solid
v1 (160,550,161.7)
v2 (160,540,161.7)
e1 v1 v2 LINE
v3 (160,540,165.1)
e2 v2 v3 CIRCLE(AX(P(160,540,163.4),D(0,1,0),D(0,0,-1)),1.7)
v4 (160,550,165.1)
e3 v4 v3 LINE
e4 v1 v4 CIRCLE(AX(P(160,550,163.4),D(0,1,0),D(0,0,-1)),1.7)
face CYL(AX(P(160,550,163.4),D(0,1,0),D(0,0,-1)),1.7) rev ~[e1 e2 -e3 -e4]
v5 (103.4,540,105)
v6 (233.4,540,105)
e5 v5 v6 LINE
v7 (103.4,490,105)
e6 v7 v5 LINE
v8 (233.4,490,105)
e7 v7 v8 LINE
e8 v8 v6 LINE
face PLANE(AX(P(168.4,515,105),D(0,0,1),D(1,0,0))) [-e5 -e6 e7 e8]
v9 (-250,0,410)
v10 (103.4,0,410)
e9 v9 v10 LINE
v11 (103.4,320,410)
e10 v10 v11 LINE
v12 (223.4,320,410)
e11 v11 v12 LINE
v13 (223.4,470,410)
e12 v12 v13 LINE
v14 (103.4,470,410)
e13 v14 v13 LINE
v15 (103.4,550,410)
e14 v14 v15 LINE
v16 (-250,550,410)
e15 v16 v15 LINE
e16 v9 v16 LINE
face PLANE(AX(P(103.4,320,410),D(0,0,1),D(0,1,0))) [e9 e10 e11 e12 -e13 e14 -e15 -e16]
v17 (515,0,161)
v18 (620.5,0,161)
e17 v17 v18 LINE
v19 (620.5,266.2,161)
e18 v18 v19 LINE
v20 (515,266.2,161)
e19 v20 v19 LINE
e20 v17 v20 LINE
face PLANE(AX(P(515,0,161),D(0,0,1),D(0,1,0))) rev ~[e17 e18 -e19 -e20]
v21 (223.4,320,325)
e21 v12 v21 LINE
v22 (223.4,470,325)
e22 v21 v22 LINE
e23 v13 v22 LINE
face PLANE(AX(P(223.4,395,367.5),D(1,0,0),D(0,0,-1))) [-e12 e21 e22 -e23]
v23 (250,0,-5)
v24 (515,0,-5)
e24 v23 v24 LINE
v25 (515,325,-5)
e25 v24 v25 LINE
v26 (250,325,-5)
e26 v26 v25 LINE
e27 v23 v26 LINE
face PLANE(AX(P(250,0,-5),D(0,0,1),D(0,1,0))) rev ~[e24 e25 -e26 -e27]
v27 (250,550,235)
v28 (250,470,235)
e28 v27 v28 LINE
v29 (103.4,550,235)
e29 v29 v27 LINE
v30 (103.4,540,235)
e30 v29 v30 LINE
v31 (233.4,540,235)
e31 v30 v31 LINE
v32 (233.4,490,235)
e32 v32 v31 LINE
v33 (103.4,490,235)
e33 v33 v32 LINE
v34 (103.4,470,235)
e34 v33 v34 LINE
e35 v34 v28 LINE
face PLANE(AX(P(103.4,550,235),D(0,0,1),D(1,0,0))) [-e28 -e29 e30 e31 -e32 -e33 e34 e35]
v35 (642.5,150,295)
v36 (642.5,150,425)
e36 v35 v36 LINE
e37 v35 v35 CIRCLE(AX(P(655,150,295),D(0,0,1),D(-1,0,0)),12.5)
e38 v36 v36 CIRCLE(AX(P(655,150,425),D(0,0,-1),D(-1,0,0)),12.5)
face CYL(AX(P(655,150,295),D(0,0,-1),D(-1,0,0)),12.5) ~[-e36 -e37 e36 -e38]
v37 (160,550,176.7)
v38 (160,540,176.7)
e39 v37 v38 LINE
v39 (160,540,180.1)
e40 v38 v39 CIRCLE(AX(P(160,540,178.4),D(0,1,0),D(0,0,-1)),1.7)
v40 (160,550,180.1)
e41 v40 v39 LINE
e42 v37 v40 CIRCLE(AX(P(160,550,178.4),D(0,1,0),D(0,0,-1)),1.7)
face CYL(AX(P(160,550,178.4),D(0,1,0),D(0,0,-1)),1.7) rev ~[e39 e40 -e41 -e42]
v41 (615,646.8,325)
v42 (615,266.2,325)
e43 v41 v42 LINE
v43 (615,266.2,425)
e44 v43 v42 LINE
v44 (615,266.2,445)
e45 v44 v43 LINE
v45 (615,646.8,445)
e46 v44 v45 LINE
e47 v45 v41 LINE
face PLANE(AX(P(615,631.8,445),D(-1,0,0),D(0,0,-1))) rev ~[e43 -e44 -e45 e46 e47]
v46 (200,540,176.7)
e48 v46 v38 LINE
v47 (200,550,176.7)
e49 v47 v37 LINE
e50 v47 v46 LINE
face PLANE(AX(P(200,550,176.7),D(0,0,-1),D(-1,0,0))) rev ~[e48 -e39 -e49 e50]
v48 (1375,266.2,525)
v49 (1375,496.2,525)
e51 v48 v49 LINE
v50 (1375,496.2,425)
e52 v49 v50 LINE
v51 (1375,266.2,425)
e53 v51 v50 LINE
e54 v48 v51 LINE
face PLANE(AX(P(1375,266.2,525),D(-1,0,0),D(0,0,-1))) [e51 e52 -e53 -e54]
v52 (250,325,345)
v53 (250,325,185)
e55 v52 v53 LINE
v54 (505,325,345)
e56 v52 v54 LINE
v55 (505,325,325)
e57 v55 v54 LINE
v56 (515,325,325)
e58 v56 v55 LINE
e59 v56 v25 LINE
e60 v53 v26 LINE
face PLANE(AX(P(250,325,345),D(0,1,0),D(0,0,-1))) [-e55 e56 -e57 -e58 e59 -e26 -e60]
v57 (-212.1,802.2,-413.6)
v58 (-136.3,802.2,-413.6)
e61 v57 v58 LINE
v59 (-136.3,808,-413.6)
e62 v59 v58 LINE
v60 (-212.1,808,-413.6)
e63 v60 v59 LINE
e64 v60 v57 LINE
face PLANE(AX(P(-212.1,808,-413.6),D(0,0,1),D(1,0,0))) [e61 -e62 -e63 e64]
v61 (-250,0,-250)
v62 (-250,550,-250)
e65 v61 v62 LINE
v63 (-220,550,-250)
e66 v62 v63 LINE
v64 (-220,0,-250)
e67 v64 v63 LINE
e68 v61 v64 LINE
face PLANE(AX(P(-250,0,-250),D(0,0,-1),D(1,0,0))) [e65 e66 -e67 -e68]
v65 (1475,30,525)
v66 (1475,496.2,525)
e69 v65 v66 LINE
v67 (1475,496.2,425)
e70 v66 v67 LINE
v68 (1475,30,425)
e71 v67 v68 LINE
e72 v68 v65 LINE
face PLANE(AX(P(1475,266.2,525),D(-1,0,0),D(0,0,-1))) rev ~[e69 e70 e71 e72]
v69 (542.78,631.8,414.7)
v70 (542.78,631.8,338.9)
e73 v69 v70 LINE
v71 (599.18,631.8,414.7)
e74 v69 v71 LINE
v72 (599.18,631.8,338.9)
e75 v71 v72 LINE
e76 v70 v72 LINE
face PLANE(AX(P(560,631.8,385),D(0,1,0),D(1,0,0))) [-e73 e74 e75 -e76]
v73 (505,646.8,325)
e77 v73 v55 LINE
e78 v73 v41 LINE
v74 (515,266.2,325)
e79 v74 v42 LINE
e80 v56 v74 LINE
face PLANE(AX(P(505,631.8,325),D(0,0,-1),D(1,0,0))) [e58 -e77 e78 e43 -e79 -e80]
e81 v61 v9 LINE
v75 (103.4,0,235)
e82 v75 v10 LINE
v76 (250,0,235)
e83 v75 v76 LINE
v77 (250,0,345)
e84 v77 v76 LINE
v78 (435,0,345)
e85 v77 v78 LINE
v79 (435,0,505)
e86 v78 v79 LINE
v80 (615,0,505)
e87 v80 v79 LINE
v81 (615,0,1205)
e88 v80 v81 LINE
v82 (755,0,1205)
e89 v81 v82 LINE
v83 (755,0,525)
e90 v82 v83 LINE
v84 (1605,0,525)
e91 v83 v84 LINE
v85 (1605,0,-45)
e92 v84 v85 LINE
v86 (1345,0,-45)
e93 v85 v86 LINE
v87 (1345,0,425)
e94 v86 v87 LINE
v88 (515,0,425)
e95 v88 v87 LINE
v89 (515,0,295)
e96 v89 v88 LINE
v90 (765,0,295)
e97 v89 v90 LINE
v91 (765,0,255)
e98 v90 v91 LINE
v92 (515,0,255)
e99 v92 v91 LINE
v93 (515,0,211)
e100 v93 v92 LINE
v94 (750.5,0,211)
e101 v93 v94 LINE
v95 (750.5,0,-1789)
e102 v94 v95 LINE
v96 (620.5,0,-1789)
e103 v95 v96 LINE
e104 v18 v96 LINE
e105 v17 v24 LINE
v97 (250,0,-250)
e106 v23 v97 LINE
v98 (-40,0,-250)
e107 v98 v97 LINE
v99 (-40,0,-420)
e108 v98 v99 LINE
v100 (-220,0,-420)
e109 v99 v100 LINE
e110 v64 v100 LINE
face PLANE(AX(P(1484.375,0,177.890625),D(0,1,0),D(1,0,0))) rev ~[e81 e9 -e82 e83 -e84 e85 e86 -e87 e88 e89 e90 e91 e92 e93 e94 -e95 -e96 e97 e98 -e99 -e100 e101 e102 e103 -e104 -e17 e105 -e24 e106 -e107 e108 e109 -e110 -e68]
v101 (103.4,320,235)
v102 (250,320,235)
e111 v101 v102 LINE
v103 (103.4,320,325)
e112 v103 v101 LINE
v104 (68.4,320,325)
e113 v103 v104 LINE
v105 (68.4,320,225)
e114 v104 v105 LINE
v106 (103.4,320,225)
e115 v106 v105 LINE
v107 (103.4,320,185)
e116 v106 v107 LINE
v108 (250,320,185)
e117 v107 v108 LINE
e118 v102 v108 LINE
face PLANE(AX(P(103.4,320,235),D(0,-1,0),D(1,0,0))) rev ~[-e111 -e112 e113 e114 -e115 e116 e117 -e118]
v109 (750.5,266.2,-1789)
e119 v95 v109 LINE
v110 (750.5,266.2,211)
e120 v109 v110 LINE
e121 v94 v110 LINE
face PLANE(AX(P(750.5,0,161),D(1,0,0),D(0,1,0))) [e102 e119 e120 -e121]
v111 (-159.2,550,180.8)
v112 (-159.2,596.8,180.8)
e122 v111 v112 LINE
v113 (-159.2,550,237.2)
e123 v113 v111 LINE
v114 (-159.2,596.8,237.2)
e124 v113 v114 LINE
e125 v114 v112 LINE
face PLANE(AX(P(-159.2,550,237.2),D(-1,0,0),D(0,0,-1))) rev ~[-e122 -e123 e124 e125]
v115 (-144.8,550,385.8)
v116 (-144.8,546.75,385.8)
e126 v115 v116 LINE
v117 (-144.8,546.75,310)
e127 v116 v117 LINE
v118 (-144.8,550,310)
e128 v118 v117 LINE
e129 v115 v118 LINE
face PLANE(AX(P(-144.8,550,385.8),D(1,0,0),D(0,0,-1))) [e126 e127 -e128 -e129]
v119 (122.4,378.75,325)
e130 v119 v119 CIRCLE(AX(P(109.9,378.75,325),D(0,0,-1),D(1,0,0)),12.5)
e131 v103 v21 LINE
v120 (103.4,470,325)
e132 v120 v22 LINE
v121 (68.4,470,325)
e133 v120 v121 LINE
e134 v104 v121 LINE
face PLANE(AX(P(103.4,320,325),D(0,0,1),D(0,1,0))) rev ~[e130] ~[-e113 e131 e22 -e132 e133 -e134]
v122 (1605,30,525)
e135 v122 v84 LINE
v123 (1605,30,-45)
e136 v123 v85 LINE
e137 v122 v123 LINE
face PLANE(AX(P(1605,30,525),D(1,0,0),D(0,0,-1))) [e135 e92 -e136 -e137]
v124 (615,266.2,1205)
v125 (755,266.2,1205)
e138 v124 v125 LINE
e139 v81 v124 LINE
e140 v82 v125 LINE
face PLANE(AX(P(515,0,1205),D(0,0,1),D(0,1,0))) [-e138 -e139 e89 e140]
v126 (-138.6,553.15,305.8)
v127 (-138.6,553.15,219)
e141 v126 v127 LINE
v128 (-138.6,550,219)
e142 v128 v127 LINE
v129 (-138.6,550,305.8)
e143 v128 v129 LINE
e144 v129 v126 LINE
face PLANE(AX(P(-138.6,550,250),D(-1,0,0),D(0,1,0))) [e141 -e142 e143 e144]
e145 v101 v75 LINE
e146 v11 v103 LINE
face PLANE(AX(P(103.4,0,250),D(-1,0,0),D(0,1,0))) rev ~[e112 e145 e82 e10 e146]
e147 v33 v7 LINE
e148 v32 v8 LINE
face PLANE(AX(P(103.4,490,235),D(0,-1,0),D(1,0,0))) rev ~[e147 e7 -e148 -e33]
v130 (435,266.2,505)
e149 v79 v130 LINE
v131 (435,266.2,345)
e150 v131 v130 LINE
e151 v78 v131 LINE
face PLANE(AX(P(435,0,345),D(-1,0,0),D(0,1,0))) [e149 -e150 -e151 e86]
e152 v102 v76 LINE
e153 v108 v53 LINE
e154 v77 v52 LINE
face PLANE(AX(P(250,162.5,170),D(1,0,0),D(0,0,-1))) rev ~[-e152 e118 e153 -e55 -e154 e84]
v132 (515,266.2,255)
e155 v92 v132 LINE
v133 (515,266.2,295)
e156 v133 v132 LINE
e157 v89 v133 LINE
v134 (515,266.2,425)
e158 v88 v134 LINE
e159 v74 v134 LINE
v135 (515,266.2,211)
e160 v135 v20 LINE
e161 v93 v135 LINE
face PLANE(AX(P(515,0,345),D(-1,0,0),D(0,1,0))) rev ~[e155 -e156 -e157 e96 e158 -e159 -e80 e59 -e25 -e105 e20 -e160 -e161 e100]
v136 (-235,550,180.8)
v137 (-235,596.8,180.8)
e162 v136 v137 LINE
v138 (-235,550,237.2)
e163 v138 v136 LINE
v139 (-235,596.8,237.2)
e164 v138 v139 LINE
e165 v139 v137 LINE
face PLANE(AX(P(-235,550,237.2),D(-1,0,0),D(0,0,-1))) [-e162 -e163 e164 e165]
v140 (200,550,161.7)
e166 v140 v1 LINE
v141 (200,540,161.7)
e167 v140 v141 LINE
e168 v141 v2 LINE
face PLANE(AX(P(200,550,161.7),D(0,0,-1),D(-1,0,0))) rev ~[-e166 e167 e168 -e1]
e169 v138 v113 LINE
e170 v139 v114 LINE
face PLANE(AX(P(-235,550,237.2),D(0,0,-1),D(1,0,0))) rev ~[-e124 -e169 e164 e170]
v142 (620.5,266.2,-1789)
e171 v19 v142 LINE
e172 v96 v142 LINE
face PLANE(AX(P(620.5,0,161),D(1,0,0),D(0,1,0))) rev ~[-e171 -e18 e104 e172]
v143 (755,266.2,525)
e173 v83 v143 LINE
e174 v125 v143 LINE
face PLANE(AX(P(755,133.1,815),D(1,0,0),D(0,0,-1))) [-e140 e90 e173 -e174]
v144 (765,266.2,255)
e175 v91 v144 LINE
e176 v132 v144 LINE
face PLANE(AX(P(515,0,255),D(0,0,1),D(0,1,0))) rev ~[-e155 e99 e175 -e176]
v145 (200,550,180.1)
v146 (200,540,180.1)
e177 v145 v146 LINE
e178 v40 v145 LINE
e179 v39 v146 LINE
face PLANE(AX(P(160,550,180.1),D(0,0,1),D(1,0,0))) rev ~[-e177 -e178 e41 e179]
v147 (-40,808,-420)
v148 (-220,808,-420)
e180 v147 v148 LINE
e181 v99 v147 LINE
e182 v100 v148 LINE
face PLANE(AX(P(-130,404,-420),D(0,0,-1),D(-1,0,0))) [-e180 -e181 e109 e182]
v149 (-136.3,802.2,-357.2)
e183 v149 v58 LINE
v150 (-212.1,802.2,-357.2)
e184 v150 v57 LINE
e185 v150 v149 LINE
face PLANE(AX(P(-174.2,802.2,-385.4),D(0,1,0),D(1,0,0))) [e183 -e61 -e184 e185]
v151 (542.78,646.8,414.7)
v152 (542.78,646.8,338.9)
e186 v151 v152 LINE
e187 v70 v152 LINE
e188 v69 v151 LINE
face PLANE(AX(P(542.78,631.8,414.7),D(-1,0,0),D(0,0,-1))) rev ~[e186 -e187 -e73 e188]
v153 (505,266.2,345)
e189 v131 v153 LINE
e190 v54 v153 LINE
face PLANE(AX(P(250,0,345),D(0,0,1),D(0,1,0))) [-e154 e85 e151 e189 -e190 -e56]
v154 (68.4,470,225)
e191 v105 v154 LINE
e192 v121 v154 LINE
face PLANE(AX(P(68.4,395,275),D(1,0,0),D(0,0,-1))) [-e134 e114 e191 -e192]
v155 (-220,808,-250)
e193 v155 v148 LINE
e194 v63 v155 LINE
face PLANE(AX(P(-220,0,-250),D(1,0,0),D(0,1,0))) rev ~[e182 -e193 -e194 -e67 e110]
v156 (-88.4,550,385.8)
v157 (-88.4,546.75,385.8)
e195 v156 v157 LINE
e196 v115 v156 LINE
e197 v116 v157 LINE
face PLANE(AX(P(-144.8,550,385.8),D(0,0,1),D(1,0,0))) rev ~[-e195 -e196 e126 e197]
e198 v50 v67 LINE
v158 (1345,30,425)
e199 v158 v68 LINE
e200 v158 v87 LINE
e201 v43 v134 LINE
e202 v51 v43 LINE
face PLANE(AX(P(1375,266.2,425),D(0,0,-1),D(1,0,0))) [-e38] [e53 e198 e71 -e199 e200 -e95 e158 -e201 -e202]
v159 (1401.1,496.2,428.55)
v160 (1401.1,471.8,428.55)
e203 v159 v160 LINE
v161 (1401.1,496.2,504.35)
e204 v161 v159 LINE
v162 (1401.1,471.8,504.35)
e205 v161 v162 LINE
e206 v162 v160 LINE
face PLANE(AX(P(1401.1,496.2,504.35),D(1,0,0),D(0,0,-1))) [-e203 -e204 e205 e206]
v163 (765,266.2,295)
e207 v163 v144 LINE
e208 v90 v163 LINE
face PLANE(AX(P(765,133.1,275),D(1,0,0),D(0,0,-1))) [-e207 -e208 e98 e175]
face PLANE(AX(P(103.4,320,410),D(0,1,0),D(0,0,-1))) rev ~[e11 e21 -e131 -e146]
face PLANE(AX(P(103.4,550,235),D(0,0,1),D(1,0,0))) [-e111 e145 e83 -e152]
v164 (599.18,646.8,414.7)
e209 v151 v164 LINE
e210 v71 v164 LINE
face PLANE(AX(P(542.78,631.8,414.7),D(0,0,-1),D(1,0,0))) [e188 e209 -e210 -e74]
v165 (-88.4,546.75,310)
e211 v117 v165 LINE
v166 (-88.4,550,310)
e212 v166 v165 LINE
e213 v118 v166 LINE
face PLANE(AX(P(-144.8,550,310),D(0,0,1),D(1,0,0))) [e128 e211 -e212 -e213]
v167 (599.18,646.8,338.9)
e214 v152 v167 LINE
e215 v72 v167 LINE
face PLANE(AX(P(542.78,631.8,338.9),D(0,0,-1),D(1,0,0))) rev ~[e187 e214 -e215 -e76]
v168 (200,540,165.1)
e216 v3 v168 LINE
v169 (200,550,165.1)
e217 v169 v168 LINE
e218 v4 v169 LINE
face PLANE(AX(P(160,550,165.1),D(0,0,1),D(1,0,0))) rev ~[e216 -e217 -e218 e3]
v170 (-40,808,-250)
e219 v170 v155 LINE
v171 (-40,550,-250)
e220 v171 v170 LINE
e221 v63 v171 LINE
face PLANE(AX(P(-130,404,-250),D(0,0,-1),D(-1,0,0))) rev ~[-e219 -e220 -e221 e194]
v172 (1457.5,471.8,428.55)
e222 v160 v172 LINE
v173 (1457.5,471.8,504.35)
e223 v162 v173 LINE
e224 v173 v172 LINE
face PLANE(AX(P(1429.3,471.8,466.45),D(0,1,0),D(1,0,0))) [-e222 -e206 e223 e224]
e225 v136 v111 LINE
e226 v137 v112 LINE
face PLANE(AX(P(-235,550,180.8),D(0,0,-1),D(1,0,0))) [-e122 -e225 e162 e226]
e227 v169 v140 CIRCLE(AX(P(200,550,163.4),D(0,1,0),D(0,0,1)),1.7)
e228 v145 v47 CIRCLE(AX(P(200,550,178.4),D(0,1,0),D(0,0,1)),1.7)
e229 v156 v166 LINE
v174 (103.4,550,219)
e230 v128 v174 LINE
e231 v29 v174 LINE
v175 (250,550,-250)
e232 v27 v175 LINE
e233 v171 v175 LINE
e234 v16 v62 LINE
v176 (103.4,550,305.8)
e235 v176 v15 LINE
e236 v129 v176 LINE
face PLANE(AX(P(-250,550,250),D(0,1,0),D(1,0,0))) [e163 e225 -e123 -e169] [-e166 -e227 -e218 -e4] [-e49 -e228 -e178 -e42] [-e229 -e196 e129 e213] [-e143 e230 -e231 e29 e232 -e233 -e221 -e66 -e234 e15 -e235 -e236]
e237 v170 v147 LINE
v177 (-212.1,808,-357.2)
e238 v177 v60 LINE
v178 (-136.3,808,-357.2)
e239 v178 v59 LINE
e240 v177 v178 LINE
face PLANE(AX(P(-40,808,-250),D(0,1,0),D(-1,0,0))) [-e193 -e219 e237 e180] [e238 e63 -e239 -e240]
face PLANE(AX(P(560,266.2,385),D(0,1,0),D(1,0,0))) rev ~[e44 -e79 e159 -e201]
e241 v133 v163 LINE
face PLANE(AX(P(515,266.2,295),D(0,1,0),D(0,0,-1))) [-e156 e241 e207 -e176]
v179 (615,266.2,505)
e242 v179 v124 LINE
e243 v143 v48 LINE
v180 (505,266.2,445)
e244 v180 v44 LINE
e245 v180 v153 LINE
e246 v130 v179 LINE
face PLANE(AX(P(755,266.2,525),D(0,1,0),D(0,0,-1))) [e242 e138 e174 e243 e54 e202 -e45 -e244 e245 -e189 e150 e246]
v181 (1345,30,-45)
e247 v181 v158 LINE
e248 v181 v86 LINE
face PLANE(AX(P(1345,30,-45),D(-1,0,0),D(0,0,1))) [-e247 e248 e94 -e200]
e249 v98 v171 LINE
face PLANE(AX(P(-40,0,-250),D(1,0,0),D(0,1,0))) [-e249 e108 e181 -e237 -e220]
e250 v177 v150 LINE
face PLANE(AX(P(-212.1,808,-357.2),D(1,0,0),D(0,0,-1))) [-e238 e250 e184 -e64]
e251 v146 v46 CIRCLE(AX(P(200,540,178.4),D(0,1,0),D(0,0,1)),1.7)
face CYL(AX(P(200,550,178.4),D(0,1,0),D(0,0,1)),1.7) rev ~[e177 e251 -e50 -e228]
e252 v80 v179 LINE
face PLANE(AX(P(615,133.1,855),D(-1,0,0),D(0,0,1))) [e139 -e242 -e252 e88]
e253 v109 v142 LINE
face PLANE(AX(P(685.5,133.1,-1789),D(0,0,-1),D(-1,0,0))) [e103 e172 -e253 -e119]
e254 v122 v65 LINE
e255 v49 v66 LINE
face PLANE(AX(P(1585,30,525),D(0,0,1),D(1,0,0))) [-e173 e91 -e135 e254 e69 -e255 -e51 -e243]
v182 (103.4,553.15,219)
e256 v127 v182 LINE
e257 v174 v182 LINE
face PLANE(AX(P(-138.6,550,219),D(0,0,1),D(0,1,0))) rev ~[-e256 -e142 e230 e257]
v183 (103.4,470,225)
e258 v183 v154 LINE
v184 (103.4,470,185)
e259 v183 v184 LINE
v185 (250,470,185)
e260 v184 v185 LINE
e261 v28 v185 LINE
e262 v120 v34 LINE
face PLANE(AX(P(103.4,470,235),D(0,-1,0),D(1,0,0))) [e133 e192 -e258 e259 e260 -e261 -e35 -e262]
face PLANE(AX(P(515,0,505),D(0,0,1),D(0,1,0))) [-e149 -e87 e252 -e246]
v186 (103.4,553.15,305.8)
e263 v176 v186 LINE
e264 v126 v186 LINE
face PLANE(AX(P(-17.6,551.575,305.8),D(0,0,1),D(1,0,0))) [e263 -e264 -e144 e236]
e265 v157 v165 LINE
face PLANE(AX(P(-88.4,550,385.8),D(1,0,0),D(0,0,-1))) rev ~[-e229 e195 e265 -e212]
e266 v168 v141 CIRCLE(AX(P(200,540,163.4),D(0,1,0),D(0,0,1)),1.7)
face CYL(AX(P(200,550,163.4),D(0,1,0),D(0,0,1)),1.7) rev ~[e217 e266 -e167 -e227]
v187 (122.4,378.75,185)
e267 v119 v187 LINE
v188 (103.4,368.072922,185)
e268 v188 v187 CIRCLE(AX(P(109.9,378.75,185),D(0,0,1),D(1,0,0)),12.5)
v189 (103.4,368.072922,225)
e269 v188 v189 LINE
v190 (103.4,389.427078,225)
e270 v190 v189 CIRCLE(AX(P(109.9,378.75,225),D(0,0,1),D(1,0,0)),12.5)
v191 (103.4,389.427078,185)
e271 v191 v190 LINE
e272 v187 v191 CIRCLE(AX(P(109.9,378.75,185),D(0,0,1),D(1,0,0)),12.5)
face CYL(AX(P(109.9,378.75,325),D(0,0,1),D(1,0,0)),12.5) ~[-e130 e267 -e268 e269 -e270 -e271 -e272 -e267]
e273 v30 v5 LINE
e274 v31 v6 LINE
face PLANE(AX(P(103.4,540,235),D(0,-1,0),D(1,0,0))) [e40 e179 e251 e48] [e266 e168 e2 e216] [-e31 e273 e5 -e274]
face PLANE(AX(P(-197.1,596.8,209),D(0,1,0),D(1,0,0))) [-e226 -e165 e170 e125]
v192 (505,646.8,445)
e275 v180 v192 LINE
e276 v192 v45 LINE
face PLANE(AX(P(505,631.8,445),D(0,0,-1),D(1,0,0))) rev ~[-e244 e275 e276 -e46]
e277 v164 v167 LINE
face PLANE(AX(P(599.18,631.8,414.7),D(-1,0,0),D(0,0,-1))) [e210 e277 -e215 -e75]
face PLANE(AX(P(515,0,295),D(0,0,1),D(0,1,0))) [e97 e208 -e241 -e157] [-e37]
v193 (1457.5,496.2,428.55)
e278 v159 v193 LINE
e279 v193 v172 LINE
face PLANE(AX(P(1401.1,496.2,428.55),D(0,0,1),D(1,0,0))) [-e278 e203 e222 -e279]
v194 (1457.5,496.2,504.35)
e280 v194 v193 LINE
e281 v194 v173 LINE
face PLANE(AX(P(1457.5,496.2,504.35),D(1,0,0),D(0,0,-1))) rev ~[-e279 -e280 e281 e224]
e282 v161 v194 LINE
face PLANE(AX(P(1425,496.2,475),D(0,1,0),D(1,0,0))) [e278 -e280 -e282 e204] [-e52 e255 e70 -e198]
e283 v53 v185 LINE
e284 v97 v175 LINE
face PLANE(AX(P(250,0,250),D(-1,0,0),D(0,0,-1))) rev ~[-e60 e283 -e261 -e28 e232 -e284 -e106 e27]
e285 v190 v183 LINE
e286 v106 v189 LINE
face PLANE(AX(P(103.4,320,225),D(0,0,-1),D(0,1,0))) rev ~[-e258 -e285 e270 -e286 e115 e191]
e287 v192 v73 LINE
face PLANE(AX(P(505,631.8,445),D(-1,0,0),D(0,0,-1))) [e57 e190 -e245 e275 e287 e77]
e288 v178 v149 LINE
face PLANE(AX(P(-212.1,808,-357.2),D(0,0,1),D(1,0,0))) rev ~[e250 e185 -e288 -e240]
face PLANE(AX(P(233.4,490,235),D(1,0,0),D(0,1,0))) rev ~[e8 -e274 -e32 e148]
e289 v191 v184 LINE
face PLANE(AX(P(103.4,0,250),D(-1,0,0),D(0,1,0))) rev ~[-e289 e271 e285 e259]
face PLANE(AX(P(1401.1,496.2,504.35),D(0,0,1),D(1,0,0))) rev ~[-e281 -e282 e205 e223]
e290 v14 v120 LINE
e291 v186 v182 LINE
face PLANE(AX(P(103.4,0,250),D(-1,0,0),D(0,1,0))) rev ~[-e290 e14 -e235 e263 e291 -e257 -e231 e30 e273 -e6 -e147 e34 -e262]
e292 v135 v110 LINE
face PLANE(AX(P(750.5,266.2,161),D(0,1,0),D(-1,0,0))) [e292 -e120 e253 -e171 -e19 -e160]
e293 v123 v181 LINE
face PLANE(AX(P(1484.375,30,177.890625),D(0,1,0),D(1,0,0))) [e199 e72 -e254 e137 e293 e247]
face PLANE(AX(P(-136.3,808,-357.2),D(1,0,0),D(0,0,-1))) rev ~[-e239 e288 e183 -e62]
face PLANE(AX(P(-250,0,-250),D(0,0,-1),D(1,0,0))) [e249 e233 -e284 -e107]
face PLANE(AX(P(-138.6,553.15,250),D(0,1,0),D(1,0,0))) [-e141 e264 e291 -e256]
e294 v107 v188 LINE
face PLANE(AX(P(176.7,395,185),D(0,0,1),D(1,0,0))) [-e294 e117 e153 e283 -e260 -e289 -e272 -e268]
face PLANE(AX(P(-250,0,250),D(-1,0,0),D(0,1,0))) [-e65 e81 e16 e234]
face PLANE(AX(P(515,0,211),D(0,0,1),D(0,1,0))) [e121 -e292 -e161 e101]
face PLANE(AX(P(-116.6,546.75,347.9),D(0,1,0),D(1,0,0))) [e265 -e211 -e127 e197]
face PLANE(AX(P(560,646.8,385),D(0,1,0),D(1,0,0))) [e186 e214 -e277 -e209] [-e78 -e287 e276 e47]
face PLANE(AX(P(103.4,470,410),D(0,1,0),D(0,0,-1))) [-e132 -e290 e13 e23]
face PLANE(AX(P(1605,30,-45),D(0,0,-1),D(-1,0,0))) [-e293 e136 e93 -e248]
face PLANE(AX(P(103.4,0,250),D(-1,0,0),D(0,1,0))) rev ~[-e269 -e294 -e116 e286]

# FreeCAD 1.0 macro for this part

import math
import FreeCAD as App
import Part
import Sketcher

V = App.Vector
Q = App.Units.Quantity


def add_polygon(sketch, points):
    """Adds a closed chain of lines whose ends are joined by coincident constraints."""
    first, n = sketch.GeometryCount, len(points)
    for a, b in zip(points, points[1:] + points[:1]):
        sketch.addGeometry(Part.LineSegment(App.Vector(*a, 0), App.Vector(*b, 0)), False)
    for i in range(n):
        sketch.addConstraint(Sketcher.Constraint("Coincident", first + i, 2, first + (i + 1) % n, 1))

doc = App.newDocument("Part")
body = doc.addObject("PartDesign::Body", "Body")

# Sketch on XZ plane
sketch1 = body.newObject("Sketcher::SketchObject", "Sketch")
sketch1.AttachmentSupport = (doc.getObject("XZ_Plane"), [""])
sketch1.MapMode = "FlatFace"
add_polygon(sketch1, [(-250, -250), (-250, 250), (250, 250), (250, -250)])  # lines 0-3
sketch1.addConstraint([
    Sketcher.Constraint("Vertical", 0),
    Sketcher.Constraint("Horizontal", 1),
    Sketcher.Constraint("Vertical", 2),
    Sketcher.Constraint("Horizontal", 3),
    Sketcher.Constraint("Symmetric", 0, 2, 2, 2, -1, 1),
    Sketcher.Constraint("Equal", 3, 0),
    Sketcher.Constraint("DistanceX", 1, 1, 1, 2, Q("500 mm")),
])
pad1 = body.newObject("PartDesign::Pad", "Pad")
pad1.Profile = sketch1
pad1.Length = 550
pad1.Reversed = True

# Sketch on XZ plane
sketch2 = body.newObject("Sketcher::SketchObject", "Sketch001")
sketch2.AttachmentSupport = (doc.getObject("XZ_Plane"), [""])
sketch2.MapMode = "FlatFace"
sketch2.AttachmentOffset = App.Placement(V(0, 0, -550), App.Rotation())
add_polygon(sketch2, [(-235, 181), (-235, 237), (-159, 237), (-159, 181)])  # lines 0-3
sketch2.addConstraint([
    Sketcher.Constraint("Vertical", 0),
    Sketcher.Constraint("Horizontal", 1),
    Sketcher.Constraint("Vertical", 2),
    Sketcher.Constraint("Horizontal", 3),
    Sketcher.Constraint("DistanceX", 1, 1, 1, 2, Q("75.8 mm")),
    Sketcher.Constraint("DistanceY", 0, 1, 0, 2, Q("56.4 mm")),
    Sketcher.Constraint("DistanceX", 0, 2, -1, 1, Q("235 mm")),
    Sketcher.Constraint("DistanceY", -1, 1, 0, 2, Q("237.2 mm")),
])
pad2 = body.newObject("PartDesign::Pad", "Pad001")
pad2.Profile = sketch2
pad2.Length = 46.8
pad2.Reversed = True

# Sketch on YZ plane
sketch3 = body.newObject("Sketcher::SketchObject", "Sketch002")
sketch3.AttachmentSupport = (doc.getObject("YZ_Plane"), [""])
sketch3.MapMode = "FlatFace"
sketch3.AttachmentOffset = App.Placement(V(0, 0, -138.6), App.Rotation())
add_polygon(sketch3, [(553.1, 250), (550, 250), (550, 219), (553.1, 219)])  # lines 0-3
sketch3.addConstraint([
    Sketcher.Constraint("Horizontal", 0),
    Sketcher.Constraint("Vertical", 1),
    Sketcher.Constraint("Horizontal", 2),
    Sketcher.Constraint("Vertical", 3),
    Sketcher.Constraint("DistanceY", 1, 2, 1, 1, Q("31 mm")),
    Sketcher.Constraint("DistanceX", -1, 1, 0, 2, Q("550 mm")),
    Sketcher.Constraint("DistanceY", -1, 1, 0, 2, Q("250 mm")),
    Sketcher.Constraint("DistanceX", 0, 2, 0, 1, Q("3.15 mm")),
])
pad3 = body.newObject("PartDesign::Pad", "Pad002")
pad3.Profile = sketch3
pad3.Length = 242

# Sketch on XZ plane
sketch4 = body.newObject("Sketcher::SketchObject", "Sketch003")
sketch4.AttachmentSupport = (doc.getObject("XZ_Plane"), [""])
sketch4.MapMode = "FlatFace"
sketch4.AttachmentOffset = App.Placement(V(0, 0, -550), App.Rotation())
add_polygon(sketch4, [(103, 235), (103, 250), (250, 250), (250, 235)])  # lines 0-3
sketch4.addConstraint([
    Sketcher.Constraint("Vertical", 0),
    Sketcher.Constraint("Horizontal", 1),
    Sketcher.Constraint("Vertical", 2),
    Sketcher.Constraint("Horizontal", 3),
    Sketcher.Constraint("DistanceY", 0, 1, 0, 2, Q("15 mm")),
    Sketcher.Constraint("DistanceX", 1, 1, 1, 2, Q("146.6 mm")),
    Sketcher.Constraint("DistanceY", -1, 1, 0, 2, Q("250 mm")),
    Sketcher.Constraint("DistanceX", -1, 1, 1, 2, Q("250 mm")),
])
pocket1 = body.newObject("PartDesign::Pocket", "Pocket")
pocket1.Profile = sketch4
pocket1.Type = "ThroughAll"
pocket1.Reversed = True

# Sketch on XY plane
sketch5 = body.newObject("Sketcher::SketchObject", "Sketch004")
sketch5.AttachmentSupport = (doc.getObject("XY_Plane"), [""])
sketch5.MapMode = "FlatFace"
sketch5.AttachmentOffset = App.Placement(V(0, 0, 250), App.Rotation())
add_polygon(sketch5, [(-250, 550), (-250, 0), (103, 0), (103, 550)])  # lines 0-3
sketch5.addConstraint([
    Sketcher.Constraint("Vertical", 0),
    Sketcher.Constraint("Horizontal", 1),
    Sketcher.Constraint("Vertical", 2),
    Sketcher.Constraint("Horizontal", 3),
    Sketcher.Constraint("PointOnObject", 0, 2, -1),
    Sketcher.Constraint("DistanceY", 0, 2, 0, 1, Q("550 mm")),
    Sketcher.Constraint("DistanceX", 1, 1, 1, 2, Q("353.4 mm")),
    Sketcher.Constraint("DistanceX", 0, 2, -1, 1, Q("250 mm")),
])
pad4 = body.newObject("PartDesign::Pad", "Pad003")
pad4.Profile = sketch5
pad4.Length = 160

# Sketch on XY plane
sketch6 = body.newObject("Sketcher::SketchObject", "Sketch005")
sketch6.AttachmentSupport = (doc.getObject("XY_Plane"), [""])
sketch6.MapMode = "FlatFace"
sketch6.AttachmentOffset = App.Placement(V(0, 0, 250), App.Rotation())
add_polygon(sketch6, [(-138.6, 553.1), (-138.6, 550), (103.4, 550), (103.4, 553.1)])  # lines 0-3
sketch6.addConstraint([
    Sketcher.Constraint("Vertical", 0),
    Sketcher.Constraint("Horizontal", 1),
    Sketcher.Constraint("Vertical", 2),
    Sketcher.Constraint("Horizontal", 3),
    Sketcher.Constraint("DistanceX", 1, 1, 1, 2, Q("242 mm")),
    Sketcher.Constraint("DistanceY", -1, 1, 0, 2, Q("550 mm")),
    Sketcher.Constraint("DistanceY", 0, 2, 0, 1, Q("3.15 mm")),
    Sketcher.Constraint("DistanceX", 0, 2, -1, 1, Q("138.6 mm")),
])
pad5 = body.newObject("PartDesign::Pad", "Pad004")
pad5.Profile = sketch6
pad5.Length = 55.8

# Sketch on XZ plane
sketch7 = body.newObject("Sketcher::SketchObject", "Sketch006")
sketch7.AttachmentSupport = (doc.getObject("XZ_Plane"), [""])
sketch7.MapMode = "FlatFace"
sketch7.AttachmentOffset = App.Placement(V(0, 0, -550), App.Rotation())
add_polygon(sketch7, [(-145, 310), (-145, 386), (-88, 386), (-88, 310)])  # lines 0-3
sketch7.addConstraint([
    Sketcher.Constraint("Vertical", 0),
    Sketcher.Constraint("Horizontal", 1),
    Sketcher.Constraint("Vertical", 2),
    Sketcher.Constraint("Horizontal", 3),
    Sketcher.Constraint("DistanceX", 1, 1, 1, 2, Q("56.4 mm")),
    Sketcher.Constraint("DistanceY", 0, 1, 0, 2, Q("75.8 mm")),
    Sketcher.Constraint("DistanceY", -1, 1, 2, 2, Q("310 mm")),
    Sketcher.Constraint("DistanceX", 0, 2, -1, 1, Q("144.8 mm")),
])
pocket2 = body.newObject("PartDesign::Pocket", "Pocket001")
pocket2.Profile = sketch7
pocket2.Length = 3.25
pocket2.Reversed = True

# Sketch on XZ plane
sketch8 = body.newObject("Sketcher::SketchObject", "Sketch007")
sketch8.AttachmentSupport = (doc.getObject("XZ_Plane"), [""])
sketch8.MapMode = "FlatFace"
sketch8.AttachmentOffset = App.Placement(V(0, 0, -550), App.Rotation())
sketch8.addGeometry([
    Part.LineSegment(V(200, 176.7, 0), V(160, 176.7, 0)),
    Part.ArcOfCircle(Part.Circle(V(160, 178.4, 0), V(0, 0, 1), 1.7), math.radians(90), math.radians(270)),
    Part.LineSegment(V(160, 180.1, 0), V(200, 180.1, 0)),
    Part.ArcOfCircle(Part.Circle(V(200, 178.4, 0), V(0, 0, 1), 1.7), math.radians(-90), math.radians(90)),
], False)
sketch8.addConstraint([
    Sketcher.Constraint("Tangent", 0, 2, 1, 2),
    Sketcher.Constraint("Tangent", 1, 1, 2, 1),
    Sketcher.Constraint("Tangent", 2, 2, 3, 2),
    Sketcher.Constraint("Tangent", 3, 1, 0, 1),
    Sketcher.Constraint("Horizontal", 0),
    Sketcher.Constraint("Horizontal", 2),
    Sketcher.Constraint("Radius", 1, Q("1.7 mm")),
    Sketcher.Constraint("DistanceX", 0, 2, 0, 1, Q("40 mm")),
    Sketcher.Constraint("DistanceX", -1, 1, 1, 3, Q("160 mm")),
    Sketcher.Constraint("DistanceY", -1, 1, 1, 3, Q("178.4 mm")),
])
pocket3 = body.newObject("PartDesign::Pocket", "Pocket002")
pocket3.Profile = sketch8
pocket3.Length = 10
pocket3.Reversed = True

# Sketch on XY plane
sketch9 = body.newObject("Sketcher::SketchObject", "Sketch008")
sketch9.AttachmentSupport = (doc.getObject("XY_Plane"), [""])
sketch9.MapMode = "FlatFace"
sketch9.AttachmentOffset = App.Placement(V(0, 0, 235), App.Rotation())
add_polygon(sketch9, [(103, 540), (103, 490), (233, 490), (233, 540)])  # lines 0-3
sketch9.addConstraint([
    Sketcher.Constraint("Vertical", 0),
    Sketcher.Constraint("Horizontal", 1),
    Sketcher.Constraint("Vertical", 2),
    Sketcher.Constraint("Horizontal", 3),
    Sketcher.Constraint("DistanceX", 1, 1, 1, 2, Q("130 mm")),
    Sketcher.Constraint("DistanceY", 0, 2, 0, 1, Q("50 mm")),
    Sketcher.Constraint("DistanceY", -1, 1, 0, 2, Q("490 mm")),
    Sketcher.Constraint("DistanceX", -1, 1, 0, 2, Q("103.4 mm")),
])
pocket4 = body.newObject("PartDesign::Pocket", "Pocket003")
pocket4.Profile = sketch9
pocket4.Length = 130
doc.recompute()

linearpattern = body.newObject("PartDesign::LinearPattern", "LinearPattern")
linearpattern.Originals = [pocket3]
linearpattern.Direction = (doc.getObject("Z_Axis"), [""])
linearpattern.Mode = "offset"
linearpattern.Offset = 15
linearpattern.Occurrences = 2
linearpattern.Reversed = True
body.Tip = linearpattern

# Sketch on XY plane
sketch10 = body.newObject("Sketcher::SketchObject", "Sketch009")
sketch10.AttachmentSupport = (doc.getObject("XY_Plane"), [""])
sketch10.MapMode = "FlatFace"
sketch10.AttachmentOffset = App.Placement(V(0, 0, 235), App.Rotation())
add_polygon(sketch10, [(103, 470), (103, 320), (250, 320), (250, 470)])  # lines 0-3
sketch10.addConstraint([
    Sketcher.Constraint("Vertical", 0),
    Sketcher.Constraint("Horizontal", 1),
    Sketcher.Constraint("Vertical", 2),
    Sketcher.Constraint("Horizontal", 3),
    Sketcher.Constraint("DistanceY", 0, 2, 0, 1, Q("150 mm")),
    Sketcher.Constraint("DistanceX", 1, 1, 1, 2, Q("146.6 mm")),
    Sketcher.Constraint("DistanceY", -1, 1, 0, 2, Q("320 mm")),
    Sketcher.Constraint("DistanceX", -1, 1, 1, 2, Q("250 mm")),
])
pocket5 = body.newObject("PartDesign::Pocket", "Pocket004")
pocket5.Profile = sketch10
pocket5.Length = 50

# Sketch on YZ plane
sketch11 = body.newObject("Sketcher::SketchObject", "Sketch010")
sketch11.AttachmentSupport = (doc.getObject("YZ_Plane"), [""])
sketch11.MapMode = "FlatFace"
sketch11.AttachmentOffset = App.Placement(V(0, 0, 250), App.Rotation())
add_polygon(sketch11, [(325, 345), (0, 345), (0, -5), (325, -5)])  # lines 0-3
sketch11.addConstraint([
    Sketcher.Constraint("Horizontal", 0),
    Sketcher.Constraint("Vertical", 1),
    Sketcher.Constraint("Horizontal", 2),
    Sketcher.Constraint("Vertical", 3),
    Sketcher.Constraint("PointOnObject", 0, 2, -2),
    Sketcher.Constraint("DistanceX", 0, 2, 0, 1, Q("325 mm")),
    Sketcher.Constraint("DistanceY", 1, 2, 1, 1, Q("350 mm")),
    Sketcher.Constraint("DistanceY", -1, 1, 0, 2, Q("345 mm")),
])
pad6 = body.newObject("PartDesign::Pad", "Pad005")
pad6.Profile = sketch11
pad6.Length = 265

# Sketch on YZ plane
sketch12 = body.newObject("Sketcher::SketchObject", "Sketch011")
sketch12.AttachmentSupport = (doc.getObject("YZ_Plane"), [""])
sketch12.MapMode = "FlatFace"
sketch12.AttachmentOffset = App.Placement(V(0, 0, 515), App.Rotation())
add_polygon(sketch12, [(266, 211), (0, 211), (0, 161), (266, 161)])  # lines 0-3
sketch12.addConstraint([
    Sketcher.Constraint("Horizontal", 0),
    Sketcher.Constraint("Vertical", 1),
    Sketcher.Constraint("Horizontal", 2),
    Sketcher.Constraint("Vertical", 3),
    Sketcher.Constraint("PointOnObject", 0, 2, -2),
    Sketcher.Constraint("DistanceY", 1, 2, 1, 1, Q("50 mm")),
    Sketcher.Constraint("DistanceX", 0, 2, 0, 1, Q("266.2 mm")),
    Sketcher.Constraint("DistanceY", -1, 1, 0, 2, Q("211 mm")),
])
pad7 = body.newObject("PartDesign::Pad", "Pad006")
pad7.Profile = sketch12
pad7.Length = 235.5

# Sketch on XY plane
sketch13 = body.newObject("Sketcher::SketchObject", "Sketch012")
sketch13.AttachmentSupport = (doc.getObject("XY_Plane"), [""])
sketch13.MapMode = "FlatFace"
sketch13.AttachmentOffset = App.Placement(V(0, 0, 161), App.Rotation())
add_polygon(sketch13, [(750, 266), (750, 0), (620, 0), (620, 266)])  # lines 0-3
sketch13.addConstraint([
    Sketcher.Constraint("Vertical", 0),
    Sketcher.Constraint("Horizontal", 1),
    Sketcher.Constraint("Vertical", 2),
    Sketcher.Constraint("Horizontal", 3),
    Sketcher.Constraint("PointOnObject", 0, 2, -1),
    Sketcher.Constraint("DistanceX", 1, 2, 1, 1, Q("130 mm")),
    Sketcher.Constraint("DistanceY", 0, 2, 0, 1, Q("266.2 mm")),
    Sketcher.Constraint("DistanceX", -1, 1, 0, 2, Q("750.5 mm")),
])
pad8 = body.newObject("PartDesign::Pad", "Pad007")
pad8.Profile = sketch13
pad8.Length = 1950
pad8.Reversed = True

# Sketch on XY plane
sketch14 = body.newObject("Sketcher::SketchObject", "Sketch013")
sketch14.AttachmentSupport = (doc.getObject("XY_Plane"), [""])
sketch14.MapMode = "FlatFace"
sketch14.AttachmentOffset = App.Placement(V(0, 0, 345), App.Rotation())
add_polygon(sketch14, [(435, 266), (435, 0), (515, 0), (515, 266)])  # lines 0-3
sketch14.addConstraint([
    Sketcher.Constraint("Vertical", 0),
    Sketcher.Constraint("Horizontal", 1),
    Sketcher.Constraint("Vertical", 2),
    Sketcher.Constraint("Horizontal", 3),
    Sketcher.Constraint("PointOnObject", 0, 2, -1),
    Sketcher.Constraint("DistanceX", 1, 1, 1, 2, Q("80 mm")),
    Sketcher.Constraint("DistanceY", 0, 2, 0, 1, Q("266.2 mm")),
    Sketcher.Constraint("DistanceX", -1, 1, 0, 2, Q("435 mm")),
])
pad9 = body.newObject("PartDesign::Pad", "Pad008")
pad9.Profile = sketch14
pad9.Length = 160

# Sketch on YZ plane
sketch15 = body.newObject("Sketcher::SketchObject", "Sketch014")
sketch15.AttachmentSupport = (doc.getObject("YZ_Plane"), [""])
sketch15.MapMode = "FlatFace"
sketch15.AttachmentOffset = App.Placement(V(0, 0, 515), App.Rotation())
add_polygon(sketch15, [(266, 1205), (0, 1205), (0, 425), (266, 425)])  # lines 0-3
sketch15.addConstraint([
    Sketcher.Constraint("Horizontal", 0),
    Sketcher.Constraint("Vertical", 1),
    Sketcher.Constraint("Horizontal", 2),
    Sketcher.Constraint("Vertical", 3),
    Sketcher.Constraint("PointOnObject", 0, 2, -2),
    Sketcher.Constraint("DistanceY", 1, 2, 1, 1, Q("780 mm")),
    Sketcher.Constraint("DistanceX", 0, 2, 0, 1, Q("266.2 mm")),
    Sketcher.Constraint("DistanceY", -1, 1, 0, 2, Q("1205 mm")),
])
pad10 = body.newObject("PartDesign::Pad", "Pad009")
pad10.Profile = sketch15
pad10.Length = 240

# Sketch on YZ plane
sketch16 = body.newObject("Sketcher::SketchObject", "Sketch015")
sketch16.AttachmentSupport = (doc.getObject("YZ_Plane"), [""])
sketch16.MapMode = "FlatFace"
sketch16.AttachmentOffset = App.Placement(V(0, 0, 515), App.Rotation())
add_polygon(sketch16, [(266, 505), (0, 505), (0, 1205), (266, 1205)])  # lines 0-3
sketch16.addConstraint([
    Sketcher.Constraint("Horizontal", 0),
    Sketcher.Constraint("Vertical", 1),
    Sketcher.Constraint("Horizontal", 2),
    Sketcher.Constraint("Vertical", 3),
    Sketcher.Constraint("PointOnObject", 0, 2, -2),
    Sketcher.Constraint("DistanceY", 1, 1, 1, 2, Q("700 mm")),
    Sketcher.Constraint("DistanceX", 0, 2, 0, 1, Q("266.2 mm")),
    Sketcher.Constraint("DistanceY", -1, 1, 0, 2, Q("505 mm")),
])
pocket6 = body.newObject("PartDesign::Pocket", "Pocket005")
pocket6.Profile = sketch16
pocket6.Length = 100
pocket6.Reversed = True

# Sketch on YZ plane
sketch17 = body.newObject("Sketcher::SketchObject", "Sketch016")
sketch17.AttachmentSupport = (doc.getObject("YZ_Plane"), [""])
sketch17.MapMode = "FlatFace"
sketch17.AttachmentOffset = App.Placement(V(0, 0, 755), App.Rotation())
add_polygon(sketch17, [(266, 525), (0, 525), (0, 425), (266, 425)])  # lines 0-3
sketch17.addConstraint([
    Sketcher.Constraint("Horizontal", 0),
    Sketcher.Constraint("Vertical", 1),
    Sketcher.Constraint("Horizontal", 2),
    Sketcher.Constraint("Vertical", 3),
    Sketcher.Constraint("PointOnObject", 0, 2, -2),
    Sketcher.Constraint("DistanceY", 1, 2, 1, 1, Q("100 mm")),
    Sketcher.Constraint("DistanceX", 0, 2, 0, 1, Q("266.2 mm")),
    Sketcher.Constraint("DistanceY", -1, 1, 0, 2, Q("525 mm")),
])
pad11 = body.newObject("PartDesign::Pad", "Pad010")
pad11.Profile = sketch17
pad11.Length = 720

# Sketch on XZ plane
sketch18 = body.newObject("Sketcher::SketchObject", "Sketch017")
sketch18.AttachmentSupport = (doc.getObject("XZ_Plane"), [""])
sketch18.MapMode = "FlatFace"
sketch18.AttachmentOffset = App.Placement(V(0, 0, -266.2), App.Rotation())
add_polygon(sketch18, [(1375, 425), (1375, 525), (1475, 525), (1475, 425)])  # lines 0-3
sketch18.addConstraint([
    Sketcher.Constraint("Vertical", 0),
    Sketcher.Constraint("Horizontal", 1),
    Sketcher.Constraint("Vertical", 2),
    Sketcher.Constraint("Horizontal", 3),
    Sketcher.Constraint("Equal", 3, 0),
    Sketcher.Constraint("DistanceX", 1, 1, 1, 2, Q("100 mm")),
    Sketcher.Constraint("DistanceX", -1, 1, 0, 2, Q("1375 mm")),
    Sketcher.Constraint("DistanceY", -1, 1, 0, 2, Q("525 mm")),
])
pad12 = body.newObject("PartDesign::Pad", "Pad011")
pad12.Profile = sketch18
pad12.Length = 230
pad12.Reversed = True

# Sketch on XZ plane
sketch19 = body.newObject("Sketcher::SketchObject", "Sketch018")
sketch19.AttachmentSupport = (doc.getObject("XZ_Plane"), [""])
sketch19.MapMode = "FlatFace"
sketch19.AttachmentOffset = App.Placement(V(0, 0, -496.2), App.Rotation())
add_polygon(sketch19, [(1401, 429), (1401, 504), (1458, 504), (1458, 429)])  # lines 0-3
sketch19.addConstraint([
    Sketcher.Constraint("Vertical", 0),
    Sketcher.Constraint("Horizontal", 1),
    Sketcher.Constraint("Vertical", 2),
    Sketcher.Constraint("Horizontal", 3),
    Sketcher.Constraint("DistanceX", 1, 1, 1, 2, Q("56.4 mm")),
    Sketcher.Constraint("DistanceY", 0, 1, 0, 2, Q("75.8 mm")),
    Sketcher.Constraint("DistanceX", -1, 1, 0, 2, Q("1401.1 mm")),
    Sketcher.Constraint("DistanceY", -1, 1, 0, 2, Q("504.35 mm")),
])
pocket7 = body.newObject("PartDesign::Pocket", "Pocket006")
pocket7.Profile = sketch19
pocket7.Length = 24.4
pocket7.Reversed = True

# Sketch on YZ plane
sketch20 = body.newObject("Sketcher::SketchObject", "Sketch019")
sketch20.AttachmentSupport = (doc.getObject("YZ_Plane"), [""])
sketch20.MapMode = "FlatFace"
sketch20.AttachmentOffset = App.Placement(V(0, 0, 515), App.Rotation())
add_polygon(sketch20, [(266, 295), (0, 295), (0, 255), (266, 255)])  # lines 0-3
sketch20.addConstraint([
    Sketcher.Constraint("Horizontal", 0),
    Sketcher.Constraint("Vertical", 1),
    Sketcher.Constraint("Horizontal", 2),
    Sketcher.Constraint("Vertical", 3),
    Sketcher.Constraint("PointOnObject", 0, 2, -2),
    Sketcher.Constraint("DistanceY", 1, 2, 1, 1, Q("40 mm")),
    Sketcher.Constraint("DistanceX", 0, 2, 0, 1, Q("266.2 mm")),
    Sketcher.Constraint("DistanceY", -1, 1, 0, 2, Q("295 mm")),
])
pad13 = body.newObject("PartDesign::Pad", "Pad012")
pad13.Profile = sketch20
pad13.Length = 250

# Sketch on XY plane
sketch21 = body.newObject("Sketcher::SketchObject", "Sketch020")
sketch21.AttachmentSupport = (doc.getObject("XY_Plane"), [""])
sketch21.MapMode = "FlatFace"
sketch21.AttachmentOffset = App.Placement(V(0, 0, 295), App.Rotation())
sketch21.addGeometry(Part.Circle(V(655, 150, 0), V(0, 0, 1), 12), False)
sketch21.addConstraint([
    Sketcher.Constraint("Diameter", 0, Q("25 mm")),
    Sketcher.Constraint("DistanceX", -1, 1, 0, 3, Q("655 mm")),
    Sketcher.Constraint("DistanceY", -1, 1, 0, 3, Q("150 mm")),
])
pad14 = body.newObject("PartDesign::Pad", "Pad013")
pad14.Profile = sketch21
pad14.Type = "UpToFirst"

# Sketch on XZ plane
sketch22 = body.newObject("Sketcher::SketchObject", "Sketch021")
sketch22.AttachmentSupport = (doc.getObject("XZ_Plane"), [""])
sketch22.MapMode = "FlatFace"
sketch22.AttachmentOffset = App.Placement(V(0, 0, -266.2), App.Rotation())
add_polygon(sketch22, [(505, 325), (505, 445), (615, 445), (615, 325)])  # lines 0-3
sketch22.addConstraint([
    Sketcher.Constraint("Vertical", 0),
    Sketcher.Constraint("Horizontal", 1),
    Sketcher.Constraint("Vertical", 2),
    Sketcher.Constraint("Horizontal", 3),
    Sketcher.Constraint("DistanceX", 1, 1, 1, 2, Q("110 mm")),
    Sketcher.Constraint("DistanceY", 0, 1, 0, 2, Q("120 mm")),
    Sketcher.Constraint("DistanceX", -1, 1, 0, 2, Q("505 mm")),
    Sketcher.Constraint("DistanceY", -1, 1, 0, 2, Q("445 mm")),
])
pad15 = body.newObject("PartDesign::Pad", "Pad014")
pad15.Profile = sketch22
pad15.Length = 365.6
pad15.Reversed = True

# Sketch on XZ plane
sketch23 = body.newObject("Sketcher::SketchObject", "Sketch022")
sketch23.AttachmentSupport = (doc.getObject("XZ_Plane"), [""])
sketch23.MapMode = "FlatFace"
sketch23.AttachmentOffset = App.Placement(V(0, 0, -631.8), App.Rotation())
add_polygon(sketch23, [(505, 325), (505, 445), (615, 445), (615, 325)])  # lines 0-3
add_polygon(sketch23, [(599, 415), (543, 415), (543, 339), (599, 339)])  # lines 4-7
sketch23.addConstraint([
    Sketcher.Constraint("Vertical", 0),
    Sketcher.Constraint("Horizontal", 1),
    Sketcher.Constraint("Vertical", 2),
    Sketcher.Constraint("Horizontal", 3),
    Sketcher.Constraint("Horizontal", 4),
    Sketcher.Constraint("Vertical", 5),
    Sketcher.Constraint("Horizontal", 6),
    Sketcher.Constraint("Vertical", 7),
    Sketcher.Constraint("DistanceX", 1, 1, 1, 2, Q("110 mm")),
    Sketcher.Constraint("DistanceY", 0, 1, 0, 2, Q("120 mm")),
    Sketcher.Constraint("DistanceX", 4, 2, 4, 1, Q("56.4 mm")),
    Sketcher.Constraint("DistanceY", 5, 2, 5, 1, Q("75.8 mm")),
    Sketcher.Constraint("DistanceX", -1, 1, 0, 2, Q("505 mm")),
    Sketcher.Constraint("DistanceY", -1, 1, 0, 2, Q("445 mm")),
    Sketcher.Constraint("DistanceY", -1, 1, 4, 2, Q("414.7 mm")),
    Sketcher.Constraint("DistanceX", -1, 1, 4, 2, Q("542.78 mm")),
])
pad16 = body.newObject("PartDesign::Pad", "Pad015")
pad16.Profile = sketch23
pad16.Length = 15
pad16.Reversed = True

# Sketch on YZ plane
sketch24 = body.newObject("Sketcher::SketchObject", "Sketch023")
sketch24.AttachmentSupport = (doc.getObject("YZ_Plane"), [""])
sketch24.MapMode = "FlatFace"
sketch24.AttachmentOffset = App.Placement(V(0, 0, 103.4), App.Rotation())
add_polygon(sketch24, [(470, 325), (320, 325), (320, 225), (470, 225)])  # lines 0-3
sketch24.addConstraint([
    Sketcher.Constraint("Horizontal", 0),
    Sketcher.Constraint("Vertical", 1),
    Sketcher.Constraint("Horizontal", 2),
    Sketcher.Constraint("Vertical", 3),
    Sketcher.Constraint("DistanceX", 0, 2, 0, 1, Q("150 mm")),
    Sketcher.Constraint("DistanceY", 1, 2, 1, 1, Q("100 mm")),
    Sketcher.Constraint("DistanceX", -1, 1, 0, 2, Q("320 mm")),
    Sketcher.Constraint("DistanceY", -1, 1, 0, 2, Q("325 mm")),
])
pocket8 = body.newObject("PartDesign::Pocket", "Pocket007")
pocket8.Profile = sketch24
pocket8.Length = 35

# Sketch on YZ plane
sketch25 = body.newObject("Sketcher::SketchObject", "Sketch024")
sketch25.AttachmentSupport = (doc.getObject("YZ_Plane"), [""])
sketch25.MapMode = "FlatFace"
sketch25.AttachmentOffset = App.Placement(V(0, 0, 103.4), App.Rotation())
add_polygon(sketch25, [(470, 410), (320, 410), (320, 325), (470, 325)])  # lines 0-3
sketch25.addConstraint([
    Sketcher.Constraint("Horizontal", 0),
    Sketcher.Constraint("Vertical", 1),
    Sketcher.Constraint("Horizontal", 2),
    Sketcher.Constraint("Vertical", 3),
    Sketcher.Constraint("DistanceX", 0, 2, 0, 1, Q("150 mm")),
    Sketcher.Constraint("DistanceY", 1, 2, 1, 1, Q("85 mm")),
    Sketcher.Constraint("DistanceX", -1, 1, 0, 2, Q("320 mm")),
    Sketcher.Constraint("DistanceY", -1, 1, 0, 2, Q("410 mm")),
])
pad17 = body.newObject("PartDesign::Pad", "Pad016")
pad17.Profile = sketch25
pad17.Length = 120

# Sketch on XY plane
sketch26 = body.newObject("Sketcher::SketchObject", "Sketch025")
sketch26.AttachmentSupport = (doc.getObject("XY_Plane"), [""])
sketch26.MapMode = "FlatFace"
sketch26.AttachmentOffset = App.Placement(V(0, 0, 325), App.Rotation())
sketch26.addGeometry(Part.Circle(V(110, 379, 0), V(0, 0, 1), 12), False)
sketch26.addConstraint([
    Sketcher.Constraint("Diameter", 0, Q("25 mm")),
    Sketcher.Constraint("DistanceX", -1, 1, 0, 3, Q("109.9 mm")),
    Sketcher.Constraint("DistanceY", -1, 1, 0, 3, Q("378.75 mm")),
])
pad18 = body.newObject("PartDesign::Pad", "Pad017")
pad18.Profile = sketch26
pad18.Type = "UpToFirst"
pad18.Reversed = True

# Sketch on XZ plane
sketch27 = body.newObject("Sketcher::SketchObject", "Sketch026")
sketch27.AttachmentSupport = (doc.getObject("XZ_Plane"), [""])
sketch27.MapMode = "FlatFace"
add_polygon(sketch27, [(1365, 525), (1365, -25), (1585, -25), (1585, 525)])  # lines 0-3
sketch27.addConstraint([
    Sketcher.Constraint("Vertical", 0),
    Sketcher.Constraint("Horizontal", 1),
    Sketcher.Constraint("Vertical", 2),
    Sketcher.Constraint("Horizontal", 3),
    Sketcher.Constraint("DistanceX", 1, 1, 1, 2, Q("220 mm")),
    Sketcher.Constraint("DistanceY", 0, 2, 0, 1, Q("550 mm")),
    Sketcher.Constraint("DistanceX", -1, 1, 0, 2, Q("1365 mm")),
    Sketcher.Constraint("DistanceY", 0, 2, -1, 1, Q("25 mm")),
])
pad19 = body.newObject("PartDesign::Pad", "Pad018")
pad19.Profile = sketch27
pad19.Length = 30
pad19.Reversed = True

# Sketch on XY plane
sketch28 = body.newObject("Sketcher::SketchObject", "Sketch027")
sketch28.AttachmentSupport = (doc.getObject("XY_Plane"), [""])
sketch28.MapMode = "FlatFace"
sketch28.AttachmentOffset = App.Placement(V(0, 0, -250), App.Rotation())
add_polygon(sketch28, [(-40, 808), (-40, 0), (-220, 0), (-220, 808)])  # lines 0-3
sketch28.addConstraint([
    Sketcher.Constraint("Vertical", 0),
    Sketcher.Constraint("Horizontal", 1),
    Sketcher.Constraint("Vertical", 2),
    Sketcher.Constraint("Horizontal", 3),
    Sketcher.Constraint("PointOnObject", 0, 2, -1),
    Sketcher.Constraint("DistanceX", 1, 2, 1, 1, Q("180 mm")),
    Sketcher.Constraint("DistanceY", 0, 2, 0, 1, Q("808 mm")),
    Sketcher.Constraint("DistanceX", 0, 2, -1, 1, Q("40 mm")),
])
pad20 = body.newObject("PartDesign::Pad", "Pad019")
pad20.Profile = sketch28
pad20.Length = 170
pad20.Reversed = True

# Sketch on XZ plane
sketch29 = body.newObject("Sketcher::SketchObject", "Sketch028")
sketch29.AttachmentSupport = (doc.getObject("XZ_Plane"), [""])
sketch29.MapMode = "FlatFace"
sketch29.AttachmentOffset = App.Placement(V(0, 0, -808), App.Rotation())
add_polygon(sketch29, [(-212, -414), (-212, -357), (-136, -357), (-136, -414)])  # lines 0-3
sketch29.addConstraint([
    Sketcher.Constraint("Vertical", 0),
    Sketcher.Constraint("Horizontal", 1),
    Sketcher.Constraint("Vertical", 2),
    Sketcher.Constraint("Horizontal", 3),
    Sketcher.Constraint("DistanceX", 1, 1, 1, 2, Q("75.8 mm")),
    Sketcher.Constraint("DistanceY", 0, 1, 0, 2, Q("56.4 mm")),
    Sketcher.Constraint("DistanceX", 0, 2, -1, 1, Q("212.1 mm")),
    Sketcher.Constraint("DistanceY", 0, 2, -1, 1, Q("357.2 mm")),
])
pocket9 = body.newObject("PartDesign::Pocket", "Pocket008")
pocket9.Profile = sketch29
pocket9.Length = 5.8
pocket9.Reversed = True

# Sketch on XZ plane
sketch30 = body.newObject("Sketcher::SketchObject", "Sketch029")
sketch30.AttachmentSupport = (doc.getObject("XZ_Plane"), [""])
sketch30.MapMode = "FlatFace"
sketch30.AttachmentOffset = App.Placement(V(0, 0, -30), App.Rotation())
add_polygon(sketch30, [(1365, 425), (1365, -25), (1585, -25), (1585, 525), (1605, 525), (1605, -45), (1345, -45), (1345, 425)])  # lines 0-7
sketch30.addConstraint([
    Sketcher.Constraint("Vertical", 0),
    Sketcher.Constraint("Horizontal", 1),
    Sketcher.Constraint("Vertical", 2),
    Sketcher.Constraint("Horizontal", 3),
    Sketcher.Constraint("Vertical", 4),
    Sketcher.Constraint("Horizontal", 5),
    Sketcher.Constraint("Vertical", 6),
    Sketcher.Constraint("Horizontal", 7),
    Sketcher.Constraint("Equal", 3, 7),
    Sketcher.Constraint("DistanceX", 1, 1, 1, 2, Q("220 mm")),
    Sketcher.Constraint("DistanceX", 3, 1, 3, 2, Q("20 mm")),
    Sketcher.Constraint("DistanceY", 0, 2, 0, 1, Q("450 mm")),
    Sketcher.Constraint("DistanceY", 2, 1, 2, 2, Q("550 mm")),
    Sketcher.Constraint("DistanceY", 4, 2, 4, 1, Q("570 mm")),
    Sketcher.Constraint("DistanceX", -1, 1, 0, 2, Q("1365 mm")),
    Sketcher.Constraint("DistanceY", 0, 2, -1, 1, Q("25 mm")),
])
pad21 = body.newObject("PartDesign::Pad", "Pad020")
pad21.Profile = sketch30
pad21.Length = 30

doc.recompute()
